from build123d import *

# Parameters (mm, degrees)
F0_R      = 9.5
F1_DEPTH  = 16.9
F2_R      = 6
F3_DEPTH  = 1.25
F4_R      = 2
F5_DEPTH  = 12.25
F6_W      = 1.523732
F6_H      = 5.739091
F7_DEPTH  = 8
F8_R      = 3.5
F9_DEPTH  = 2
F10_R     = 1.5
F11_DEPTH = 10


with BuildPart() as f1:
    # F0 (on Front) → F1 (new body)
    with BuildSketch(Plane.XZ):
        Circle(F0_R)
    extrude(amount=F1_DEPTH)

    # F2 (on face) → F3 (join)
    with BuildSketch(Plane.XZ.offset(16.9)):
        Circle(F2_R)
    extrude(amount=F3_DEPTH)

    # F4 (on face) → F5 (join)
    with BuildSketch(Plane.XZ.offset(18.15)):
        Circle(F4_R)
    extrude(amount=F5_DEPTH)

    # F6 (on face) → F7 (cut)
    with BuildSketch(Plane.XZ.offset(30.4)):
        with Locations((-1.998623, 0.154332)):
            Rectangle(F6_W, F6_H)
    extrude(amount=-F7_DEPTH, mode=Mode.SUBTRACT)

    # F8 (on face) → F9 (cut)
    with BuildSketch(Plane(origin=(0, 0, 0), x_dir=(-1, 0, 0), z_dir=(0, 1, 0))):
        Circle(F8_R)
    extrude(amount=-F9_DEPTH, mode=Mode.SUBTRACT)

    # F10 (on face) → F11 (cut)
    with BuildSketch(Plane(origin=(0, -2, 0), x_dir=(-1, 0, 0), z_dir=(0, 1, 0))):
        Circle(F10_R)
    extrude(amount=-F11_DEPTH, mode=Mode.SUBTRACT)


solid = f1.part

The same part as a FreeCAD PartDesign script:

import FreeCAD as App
import Part
import Sketcher

V = App.Vector


def add_polygon(sketch, points):
    """Adds a closed chain of lines whose ends are joined by coincident constraints."""
    first, n = sketch.GeometryCount, len(points)
    for a, b in zip(points, points[1:] + points[:1]):
        sketch.addGeometry(Part.LineSegment(App.Vector(*a, 0), App.Vector(*b, 0)), False)
    for i in range(n):
        sketch.addConstraint(Sketcher.Constraint("Coincident", first + i, 2, first + (i + 1) % n, 1))

doc = App.newDocument("Part")
body = doc.addObject("PartDesign::Body", "Body")

sketch1 = doc.addObject("Sketcher::SketchObject", "Sketch")
body.addObject(sketch1)
sketch1.AttachmentSupport = (doc.XZ_Plane, [""])
sketch1.MapMode = "FlatFace"
sketch1.addGeometry(Part.Circle(V(0, 0, 0), V(0, 0, 1), 10), False)
sketch1.addConstraint([
    Sketcher.Constraint("Coincident", 0, 3, -1, 1),
    Sketcher.Constraint("Diameter", 0, 19.0),
])
pad1 = doc.addObject("PartDesign::Pad", "Pad")
body.addObject(pad1)
pad1.Profile = sketch1
pad1.Length = 16.9

sketch2 = doc.addObject("Sketcher::SketchObject", "Sketch001")
body.addObject(sketch2)
sketch2.AttachmentSupport = (doc.XZ_Plane, [""])
sketch2.MapMode = "FlatFace"
sketch2.AttachmentOffset = App.Placement(V(0, 0, 16.9), App.Rotation())
sketch2.addGeometry(Part.Circle(V(0, 0, 0), V(0, 0, 1), 6), False)
sketch2.addConstraint([
    Sketcher.Constraint("Coincident", 0, 3, -1, 1),
    Sketcher.Constraint("Diameter", 0, 12.0),
])
pad2 = doc.addObject("PartDesign::Pad", "Pad001")
body.addObject(pad2)
pad2.Profile = sketch2
pad2.Length = 1.25

sketch3 = doc.addObject("Sketcher::SketchObject", "Sketch002")
body.addObject(sketch3)
sketch3.AttachmentSupport = (doc.XZ_Plane, [""])
sketch3.MapMode = "FlatFace"
sketch3.AttachmentOffset = App.Placement(V(0, 0, 18.15), App.Rotation())
sketch3.addGeometry(Part.Circle(V(0, 0, 0), V(0, 0, 1), 2), False)
sketch3.addConstraint([
    Sketcher.Constraint("Coincident", 0, 3, -1, 1),
    Sketcher.Constraint("Diameter", 0, 4.0),
])
pad3 = doc.addObject("PartDesign::Pad", "Pad002")
body.addObject(pad3)
pad3.Profile = sketch3
pad3.Length = 12.25

sketch4 = doc.addObject("Sketcher::SketchObject", "Sketch003")
body.addObject(sketch4)
sketch4.AttachmentSupport = (doc.XZ_Plane, [""])
sketch4.MapMode = "FlatFace"
sketch4.AttachmentOffset = App.Placement(V(0, 0, 30.4), App.Rotation())
add_polygon(sketch4, [(-2.8, 3), (-2.8, -2.7), (-1.2, -2.7), (-1.2, 3)])
sketch4.addConstraint([
    Sketcher.Constraint("Vertical", 0),
    Sketcher.Constraint("Horizontal", 1),
    Sketcher.Constraint("Vertical", 2),
    Sketcher.Constraint("Horizontal", 3),
    Sketcher.Constraint("DistanceY", 0, 2, 0, 1, 5.739091),
    Sketcher.Constraint("DistanceX", 1, 1, 1, 2, 1.523732),
    Sketcher.Constraint("DistanceX", 0, 2, -1, 1, 2.760489),
    Sketcher.Constraint("DistanceY", 0, 2, -1, 1, 2.715213),
])
pocket1 = doc.addObject("PartDesign::Pocket", "Pocket")
body.addObject(pocket1)
pocket1.Profile = sketch4
pocket1.Length = 8

sketch5 = doc.addObject("Sketcher::SketchObject", "Sketch004")
body.addObject(sketch5)
sketch5.AttachmentSupport = (doc.XZ_Plane, [""])
sketch5.MapMode = "FlatFace"
sketch5.addGeometry(Part.Circle(V(0, 0, 0), V(0, 0, 1), 3.5), False)
sketch5.addConstraint([
    Sketcher.Constraint("Coincident", 0, 3, -1, 1),
    Sketcher.Constraint("Diameter", 0, 7.0),
])
pocket2 = doc.addObject("PartDesign::Pocket", "Pocket001")
body.addObject(pocket2)
pocket2.Profile = sketch5
pocket2.Length = 2
pocket2.Reversed = True

sketch6 = doc.addObject("Sketcher::SketchObject", "Sketch005")
body.addObject(sketch6)
sketch6.AttachmentSupport = (doc.XZ_Plane, [""])
sketch6.MapMode = "FlatFace"
sketch6.AttachmentOffset = App.Placement(V(0, 0, 2), App.Rotation())
sketch6.addGeometry(Part.Circle(V(0, 0, 0), V(0, 0, 1), 1.5), False)
sketch6.addConstraint([
    Sketcher.Constraint("Coincident", 0, 3, -1, 1),
    Sketcher.Constraint("Diameter", 0, 3.0),
])
pocket3 = doc.addObject("PartDesign::Pocket", "Pocket002")
body.addObject(pocket3)
pocket3.Profile = sketch6
pocket3.Length = 10
pocket3.Reversed = True

doc.recompute()
